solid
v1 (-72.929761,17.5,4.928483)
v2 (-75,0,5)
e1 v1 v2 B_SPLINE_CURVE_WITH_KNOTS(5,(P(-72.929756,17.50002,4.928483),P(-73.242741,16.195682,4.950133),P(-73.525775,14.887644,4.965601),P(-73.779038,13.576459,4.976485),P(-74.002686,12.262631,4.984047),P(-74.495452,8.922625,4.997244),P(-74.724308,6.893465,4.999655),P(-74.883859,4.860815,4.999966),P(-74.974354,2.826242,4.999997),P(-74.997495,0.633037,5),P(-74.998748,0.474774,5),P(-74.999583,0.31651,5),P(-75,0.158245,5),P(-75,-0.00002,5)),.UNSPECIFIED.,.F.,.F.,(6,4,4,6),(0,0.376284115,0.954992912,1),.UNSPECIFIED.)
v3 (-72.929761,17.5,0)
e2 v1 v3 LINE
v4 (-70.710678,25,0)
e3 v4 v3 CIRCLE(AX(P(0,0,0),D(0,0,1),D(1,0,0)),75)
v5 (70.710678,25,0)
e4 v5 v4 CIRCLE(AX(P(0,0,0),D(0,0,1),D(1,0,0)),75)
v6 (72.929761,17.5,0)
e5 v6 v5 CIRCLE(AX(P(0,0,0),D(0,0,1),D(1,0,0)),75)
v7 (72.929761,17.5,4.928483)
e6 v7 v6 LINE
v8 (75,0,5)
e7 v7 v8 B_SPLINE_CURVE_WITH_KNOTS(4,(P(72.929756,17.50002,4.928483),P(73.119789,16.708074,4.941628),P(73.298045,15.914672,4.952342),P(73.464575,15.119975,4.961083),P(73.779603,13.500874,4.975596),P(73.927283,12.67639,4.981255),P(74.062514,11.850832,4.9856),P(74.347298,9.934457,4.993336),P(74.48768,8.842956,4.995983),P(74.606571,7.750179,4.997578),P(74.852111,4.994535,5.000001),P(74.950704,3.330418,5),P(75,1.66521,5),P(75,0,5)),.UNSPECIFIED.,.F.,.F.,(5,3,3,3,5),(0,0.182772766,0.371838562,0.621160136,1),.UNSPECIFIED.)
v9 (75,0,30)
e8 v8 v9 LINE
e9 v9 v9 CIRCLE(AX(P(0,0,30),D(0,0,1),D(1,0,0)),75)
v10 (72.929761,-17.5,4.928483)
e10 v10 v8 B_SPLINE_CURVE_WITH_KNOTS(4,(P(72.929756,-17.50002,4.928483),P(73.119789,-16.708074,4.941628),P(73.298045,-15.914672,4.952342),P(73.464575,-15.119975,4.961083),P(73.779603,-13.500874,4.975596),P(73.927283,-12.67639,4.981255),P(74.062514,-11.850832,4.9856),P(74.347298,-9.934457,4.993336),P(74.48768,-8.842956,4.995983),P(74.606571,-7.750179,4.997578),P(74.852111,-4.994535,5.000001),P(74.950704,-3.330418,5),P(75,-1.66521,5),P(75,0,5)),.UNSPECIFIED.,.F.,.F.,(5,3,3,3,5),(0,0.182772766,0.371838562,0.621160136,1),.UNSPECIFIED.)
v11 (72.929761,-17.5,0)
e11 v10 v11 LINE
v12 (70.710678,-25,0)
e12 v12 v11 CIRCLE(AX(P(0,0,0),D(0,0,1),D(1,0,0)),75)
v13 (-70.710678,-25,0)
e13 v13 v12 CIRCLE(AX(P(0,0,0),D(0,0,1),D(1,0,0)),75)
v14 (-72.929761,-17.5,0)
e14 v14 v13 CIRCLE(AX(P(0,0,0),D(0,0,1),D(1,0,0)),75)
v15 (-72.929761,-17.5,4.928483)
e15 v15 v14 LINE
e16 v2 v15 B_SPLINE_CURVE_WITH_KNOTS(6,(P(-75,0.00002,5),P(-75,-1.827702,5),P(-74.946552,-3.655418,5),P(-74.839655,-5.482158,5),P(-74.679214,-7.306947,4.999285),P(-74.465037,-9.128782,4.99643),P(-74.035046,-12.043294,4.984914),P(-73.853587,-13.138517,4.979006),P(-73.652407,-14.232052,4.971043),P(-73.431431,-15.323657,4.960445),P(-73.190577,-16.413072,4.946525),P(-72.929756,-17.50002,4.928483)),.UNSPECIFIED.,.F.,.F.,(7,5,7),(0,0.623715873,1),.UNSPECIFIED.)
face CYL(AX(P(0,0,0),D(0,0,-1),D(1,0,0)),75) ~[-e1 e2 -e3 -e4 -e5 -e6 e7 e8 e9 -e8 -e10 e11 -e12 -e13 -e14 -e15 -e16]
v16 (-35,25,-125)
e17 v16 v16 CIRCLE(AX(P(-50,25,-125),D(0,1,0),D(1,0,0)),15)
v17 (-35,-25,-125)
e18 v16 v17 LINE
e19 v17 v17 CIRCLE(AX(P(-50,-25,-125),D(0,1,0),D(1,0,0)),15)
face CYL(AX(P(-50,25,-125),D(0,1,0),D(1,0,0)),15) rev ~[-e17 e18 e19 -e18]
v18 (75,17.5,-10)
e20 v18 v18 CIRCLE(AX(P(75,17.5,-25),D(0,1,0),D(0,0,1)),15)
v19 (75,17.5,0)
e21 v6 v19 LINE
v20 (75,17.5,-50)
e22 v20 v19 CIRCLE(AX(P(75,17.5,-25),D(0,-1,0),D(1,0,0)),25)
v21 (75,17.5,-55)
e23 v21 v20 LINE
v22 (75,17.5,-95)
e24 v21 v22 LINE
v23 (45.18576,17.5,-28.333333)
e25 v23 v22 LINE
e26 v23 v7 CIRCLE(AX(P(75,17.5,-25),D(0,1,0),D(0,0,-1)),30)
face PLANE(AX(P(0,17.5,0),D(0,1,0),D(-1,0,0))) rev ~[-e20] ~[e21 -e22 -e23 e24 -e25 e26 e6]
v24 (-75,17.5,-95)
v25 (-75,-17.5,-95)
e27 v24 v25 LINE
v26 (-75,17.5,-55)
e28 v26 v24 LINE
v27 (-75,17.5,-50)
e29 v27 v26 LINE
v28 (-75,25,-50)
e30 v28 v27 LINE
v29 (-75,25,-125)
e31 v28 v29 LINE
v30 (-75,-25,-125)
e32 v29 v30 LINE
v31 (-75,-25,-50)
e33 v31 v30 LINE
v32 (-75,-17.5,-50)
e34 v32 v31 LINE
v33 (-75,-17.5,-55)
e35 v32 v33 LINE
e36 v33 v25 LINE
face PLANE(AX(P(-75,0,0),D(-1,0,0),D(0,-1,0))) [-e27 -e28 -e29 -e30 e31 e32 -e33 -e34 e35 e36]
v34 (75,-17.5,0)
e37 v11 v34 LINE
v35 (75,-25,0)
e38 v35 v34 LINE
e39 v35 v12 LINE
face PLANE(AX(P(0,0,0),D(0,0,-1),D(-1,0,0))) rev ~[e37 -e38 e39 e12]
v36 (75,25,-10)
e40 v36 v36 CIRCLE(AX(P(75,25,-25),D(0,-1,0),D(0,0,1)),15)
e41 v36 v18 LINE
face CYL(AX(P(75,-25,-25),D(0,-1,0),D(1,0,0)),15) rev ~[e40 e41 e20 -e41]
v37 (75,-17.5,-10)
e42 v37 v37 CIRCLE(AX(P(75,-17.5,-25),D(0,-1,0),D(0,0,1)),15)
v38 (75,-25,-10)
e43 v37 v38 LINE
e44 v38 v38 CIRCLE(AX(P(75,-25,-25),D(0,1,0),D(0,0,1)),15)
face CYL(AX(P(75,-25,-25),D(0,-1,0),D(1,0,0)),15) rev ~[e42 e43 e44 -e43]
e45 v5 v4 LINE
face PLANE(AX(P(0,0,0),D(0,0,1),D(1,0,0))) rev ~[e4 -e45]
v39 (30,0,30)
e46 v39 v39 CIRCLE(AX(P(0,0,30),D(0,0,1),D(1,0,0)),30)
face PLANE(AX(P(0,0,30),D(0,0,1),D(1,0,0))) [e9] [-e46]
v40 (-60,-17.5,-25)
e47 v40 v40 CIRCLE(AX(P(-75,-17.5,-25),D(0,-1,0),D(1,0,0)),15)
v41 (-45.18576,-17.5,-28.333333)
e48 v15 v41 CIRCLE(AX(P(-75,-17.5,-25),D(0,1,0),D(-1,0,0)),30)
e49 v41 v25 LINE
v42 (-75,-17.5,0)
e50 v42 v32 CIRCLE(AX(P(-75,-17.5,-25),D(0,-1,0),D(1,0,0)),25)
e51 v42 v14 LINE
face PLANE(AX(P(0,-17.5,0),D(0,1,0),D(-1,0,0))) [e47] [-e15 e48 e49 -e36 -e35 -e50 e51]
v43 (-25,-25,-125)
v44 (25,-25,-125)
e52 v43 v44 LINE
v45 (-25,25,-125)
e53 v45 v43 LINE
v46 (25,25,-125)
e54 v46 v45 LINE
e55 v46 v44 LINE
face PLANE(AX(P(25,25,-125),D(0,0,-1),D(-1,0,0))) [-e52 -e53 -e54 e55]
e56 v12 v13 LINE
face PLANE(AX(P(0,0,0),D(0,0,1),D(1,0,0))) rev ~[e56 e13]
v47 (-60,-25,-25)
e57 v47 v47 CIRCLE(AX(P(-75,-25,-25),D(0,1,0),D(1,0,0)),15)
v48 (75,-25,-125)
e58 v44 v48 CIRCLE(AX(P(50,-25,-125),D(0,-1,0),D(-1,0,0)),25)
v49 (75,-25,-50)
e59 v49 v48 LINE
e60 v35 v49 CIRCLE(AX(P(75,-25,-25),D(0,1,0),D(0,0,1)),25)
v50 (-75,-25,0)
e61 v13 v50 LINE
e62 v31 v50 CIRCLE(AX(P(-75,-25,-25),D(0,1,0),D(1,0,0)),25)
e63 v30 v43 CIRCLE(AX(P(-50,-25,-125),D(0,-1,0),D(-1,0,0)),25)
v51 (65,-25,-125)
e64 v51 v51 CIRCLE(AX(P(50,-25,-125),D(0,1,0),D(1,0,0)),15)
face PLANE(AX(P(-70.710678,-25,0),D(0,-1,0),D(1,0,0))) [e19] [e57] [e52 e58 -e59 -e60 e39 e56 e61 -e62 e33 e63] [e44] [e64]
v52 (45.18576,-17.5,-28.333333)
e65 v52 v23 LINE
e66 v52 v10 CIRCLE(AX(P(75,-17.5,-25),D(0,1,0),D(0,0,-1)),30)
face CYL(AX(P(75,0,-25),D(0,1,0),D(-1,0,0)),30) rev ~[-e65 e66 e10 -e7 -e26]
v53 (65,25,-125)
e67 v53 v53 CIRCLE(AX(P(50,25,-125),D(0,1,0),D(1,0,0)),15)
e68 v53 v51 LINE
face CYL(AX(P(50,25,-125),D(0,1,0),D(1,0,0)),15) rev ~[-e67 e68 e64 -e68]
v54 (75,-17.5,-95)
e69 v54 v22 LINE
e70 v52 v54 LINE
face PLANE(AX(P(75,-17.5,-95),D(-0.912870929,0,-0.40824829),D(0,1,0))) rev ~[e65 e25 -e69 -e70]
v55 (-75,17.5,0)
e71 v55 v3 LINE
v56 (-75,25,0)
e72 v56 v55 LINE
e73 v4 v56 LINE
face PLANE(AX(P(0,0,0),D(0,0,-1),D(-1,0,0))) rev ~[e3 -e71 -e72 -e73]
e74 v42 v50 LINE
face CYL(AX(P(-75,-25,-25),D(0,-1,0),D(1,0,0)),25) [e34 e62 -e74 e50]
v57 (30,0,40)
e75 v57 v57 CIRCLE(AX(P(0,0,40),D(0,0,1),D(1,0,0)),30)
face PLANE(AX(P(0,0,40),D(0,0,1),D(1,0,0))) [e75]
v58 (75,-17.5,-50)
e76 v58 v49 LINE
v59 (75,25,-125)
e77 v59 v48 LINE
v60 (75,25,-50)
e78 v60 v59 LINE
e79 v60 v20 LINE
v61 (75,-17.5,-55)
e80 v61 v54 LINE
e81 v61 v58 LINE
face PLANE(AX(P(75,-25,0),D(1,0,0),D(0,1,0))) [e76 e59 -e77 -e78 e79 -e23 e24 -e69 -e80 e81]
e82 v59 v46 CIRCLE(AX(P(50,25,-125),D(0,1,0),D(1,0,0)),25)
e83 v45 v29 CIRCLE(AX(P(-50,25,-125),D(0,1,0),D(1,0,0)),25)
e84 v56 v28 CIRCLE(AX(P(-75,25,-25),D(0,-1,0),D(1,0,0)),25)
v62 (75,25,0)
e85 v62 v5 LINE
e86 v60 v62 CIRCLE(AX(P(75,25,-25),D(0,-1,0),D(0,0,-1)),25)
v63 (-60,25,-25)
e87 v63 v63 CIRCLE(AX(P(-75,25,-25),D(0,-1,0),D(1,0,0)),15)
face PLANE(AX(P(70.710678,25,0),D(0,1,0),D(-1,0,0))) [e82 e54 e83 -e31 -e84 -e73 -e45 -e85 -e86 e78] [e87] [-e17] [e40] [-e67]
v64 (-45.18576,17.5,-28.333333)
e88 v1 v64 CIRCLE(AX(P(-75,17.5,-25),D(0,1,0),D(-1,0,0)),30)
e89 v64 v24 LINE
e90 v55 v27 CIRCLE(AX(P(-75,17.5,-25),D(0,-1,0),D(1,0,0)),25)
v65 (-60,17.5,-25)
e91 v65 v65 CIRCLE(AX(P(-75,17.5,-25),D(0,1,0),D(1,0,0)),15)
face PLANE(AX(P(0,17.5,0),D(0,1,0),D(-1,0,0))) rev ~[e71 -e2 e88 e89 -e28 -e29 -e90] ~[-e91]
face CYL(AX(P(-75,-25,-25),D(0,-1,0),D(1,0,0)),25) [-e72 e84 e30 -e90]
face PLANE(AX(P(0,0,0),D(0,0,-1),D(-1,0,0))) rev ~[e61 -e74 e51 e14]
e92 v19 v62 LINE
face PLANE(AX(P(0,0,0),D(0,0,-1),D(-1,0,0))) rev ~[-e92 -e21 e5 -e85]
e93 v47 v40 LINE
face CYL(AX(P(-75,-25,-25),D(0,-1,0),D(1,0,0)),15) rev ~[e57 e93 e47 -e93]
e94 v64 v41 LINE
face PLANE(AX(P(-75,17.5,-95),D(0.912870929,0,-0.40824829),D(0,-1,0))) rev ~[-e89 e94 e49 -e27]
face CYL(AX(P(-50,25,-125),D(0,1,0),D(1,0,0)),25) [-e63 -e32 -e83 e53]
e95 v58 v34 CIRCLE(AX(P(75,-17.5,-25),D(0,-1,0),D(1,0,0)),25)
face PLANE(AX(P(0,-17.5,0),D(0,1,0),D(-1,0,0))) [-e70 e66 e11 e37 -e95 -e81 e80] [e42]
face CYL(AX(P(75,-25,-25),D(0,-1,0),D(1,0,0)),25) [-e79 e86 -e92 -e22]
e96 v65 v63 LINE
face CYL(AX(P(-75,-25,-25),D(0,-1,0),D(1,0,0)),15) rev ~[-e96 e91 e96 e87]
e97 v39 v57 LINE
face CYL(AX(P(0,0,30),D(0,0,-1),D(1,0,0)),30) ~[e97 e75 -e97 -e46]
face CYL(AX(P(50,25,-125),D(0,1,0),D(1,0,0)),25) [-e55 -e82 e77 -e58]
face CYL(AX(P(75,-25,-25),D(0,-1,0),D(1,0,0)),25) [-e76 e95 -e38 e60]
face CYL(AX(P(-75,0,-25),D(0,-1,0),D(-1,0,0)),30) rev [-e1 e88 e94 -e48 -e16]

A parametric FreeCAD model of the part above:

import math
import FreeCAD as App
import Part
import Sketcher
from FreeCAD import Vector


def edges_at(feature, points):
    """Names of the edges that pass closest to the given points."""
    edges = feature.Shape.Edges
    near = lambda p: min(range(len(edges)), key=lambda i: edges[i].distToShape(Part.Vertex(*p))[0])
    return sorted({f"Edge{near(p) + 1}" for p in points})

doc = App.newDocument("Part")
body = doc.addObject("PartDesign::Body", "Body")

# Sketch on XY plane
sketch1 = body.newObject("Sketcher::SketchObject", "Sketch")
sketch1.AttachmentSupport = (doc.getObject("XY_Plane"), [""])
sketch1.MapMode = "FlatFace"
sketch1.addGeometry(Part.Circle(Vector(0, 0, 0), Vector(0, 0, 1), 75), False)
sketch1.addConstraint([
    Sketcher.Constraint("Coincident", 0, 3, -1, 1),
    Sketcher.Constraint("Diameter", 0, 150.0),
])
pad1 = body.newObject("PartDesign::Pad", "Pad")
pad1.Profile = sketch1
pad1.Length = 30

# Sketch on XY plane
sketch2 = body.newObject("Sketcher::SketchObject", "Sketch001")
sketch2.AttachmentSupport = (doc.getObject("XY_Plane"), [""])
sketch2.MapMode = "FlatFace"
sketch2.AttachmentOffset = App.Placement(Vector(0, 0, 30), App.Rotation())
sketch2.addGeometry(Part.Circle(Vector(0, 0, 0), Vector(0, 0, 1), 30), False)
sketch2.addConstraint([
    Sketcher.Constraint("Coincident", 0, 3, -1, 1),
    Sketcher.Constraint("Diameter", 0, 60.0),
])
pad2 = body.newObject("PartDesign::Pad", "Pad001")
pad2.Profile = sketch2
pad2.Length = 10

# Sketch on XY plane
sketch3 = body.newObject("Sketcher::SketchObject", "Sketch002")
sketch3.AttachmentSupport = (doc.getObject("XY_Plane"), [""])
sketch3.MapMode = "FlatFace"
sketch3.addGeometry([
    Part.LineSegment(Vector(-75, -25, 0), Vector(-75, 25, 0)),
    Part.LineSegment(Vector(-75, 25, 0), Vector(75, 25, 0)),
    Part.LineSegment(Vector(75, 25, 0), Vector(75, -25, 0)),
    Part.LineSegment(Vector(75, -25, 0), Vector(-75, -25, 0)),
], False)
sketch3.addConstraint([
    Sketcher.Constraint("Coincident", 0, 2, 1, 1),
    Sketcher.Constraint("Coincident", 1, 2, 2, 1),
    Sketcher.Constraint("Coincident", 2, 2, 3, 1),
    Sketcher.Constraint("Coincident", 3, 2, 0, 1),
    Sketcher.Constraint("Vertical", 0),
    Sketcher.Constraint("Horizontal", 1),
    Sketcher.Constraint("Vertical", 2),
    Sketcher.Constraint("Horizontal", 3),
    Sketcher.Constraint("Symmetric", 0, 2, 2, 2, -1, 1),
    Sketcher.Constraint("DistanceX", 1, 1, 1, 2, 150.0),
    Sketcher.Constraint("DistanceY", 0, 1, 0, 2, 50.0),
])
pad3 = body.newObject("PartDesign::Pad", "Pad002")
pad3.Profile = sketch3
pad3.Length = 150
pad3.Reversed = True

# Sketch on XZ plane
sketch4 = body.newObject("Sketcher::SketchObject", "Sketch003")
sketch4.AttachmentSupport = (doc.getObject("XZ_Plane"), [""])
sketch4.MapMode = "FlatFace"
sketch4.AttachmentOffset = App.Placement(Vector(0, 0, -25), App.Rotation())
sketch4.addGeometry([
    Part.Circle(Vector(50, -125, 0), Vector(0, 0, 1), 15),  # 0
    Part.Circle(Vector(-50, -125, 0), Vector(0, 0, 1), 15),  # 1
    Part.ArcOfCircle(Part.Circle(Vector(50, -125, 0), Vector(0, 0, 1), 25), math.radians(-90), math.radians(0)),  # 2
    Part.LineSegment(Vector(75, -125, 0), Vector(75, -150, 0)),  # 3
    Part.LineSegment(Vector(75, -150, 0), Vector(50, -150, 0)),  # 4
    Part.ArcOfCircle(Part.Circle(Vector(-50, -125, 0), Vector(0, 0, 1), 25), math.radians(180), math.radians(270)),  # 5
    Part.LineSegment(Vector(-50, -150, 0), Vector(-75, -150, 0)),  # 6
    Part.LineSegment(Vector(-75, -150, 0), Vector(-75, -125, 0)),  # 7
    Part.ArcOfCircle(Part.Circle(Vector(50, -125, 0), Vector(0, 0, 1), 25), math.radians(180), math.radians(270)),  # 8
    Part.LineSegment(Vector(50, -150, 0), Vector(-50, -150, 0)),  # 9
    Part.ArcOfCircle(Part.Circle(Vector(-50, -125, 0), Vector(0, 0, 1), 25), math.radians(-90), math.radians(0)),  # 10
    Part.LineSegment(Vector(-25, -125, 0), Vector(25, -125, 0)),  # 11
], False)
sketch4.addConstraint([
    Sketcher.Constraint("Tangent", 2, 2, 3, 1),
    Sketcher.Constraint("Coincident", 3, 2, 4, 1),
    Sketcher.Constraint("Tangent", 4, 2, 2, 1),
    Sketcher.Constraint("Tangent", 5, 2, 6, 1),
    Sketcher.Constraint("Coincident", 6, 2, 7, 1),
    Sketcher.Constraint("Tangent", 7, 2, 5, 1),
    Sketcher.Constraint("Tangent", 8, 2, 9, 1),
    Sketcher.Constraint("Tangent", 9, 2, 10, 1),
    Sketcher.Constraint("Coincident", 10, 2, 11, 1),
    Sketcher.Constraint("Coincident", 11, 2, 8, 1),
    Sketcher.Constraint("Vertical", 3),
    Sketcher.Constraint("Horizontal", 4),
    Sketcher.Constraint("Horizontal", 6),
    Sketcher.Constraint("Vertical", 7),
    Sketcher.Constraint("Horizontal", 9),
    Sketcher.Constraint("Horizontal", 11),
    Sketcher.Constraint("Coincident", 2, 3, 0, 3),
    Sketcher.Constraint("Coincident", 5, 3, 1, 3),
    Sketcher.Constraint("Coincident", 8, 3, 0, 3),
    Sketcher.Constraint("Coincident", 10, 3, 1, 3),
    Sketcher.Constraint("Equal", 0, 1),
    Sketcher.Constraint("Equal", 2, 5),
    Sketcher.Constraint("Equal", 5, 8),
    Sketcher.Constraint("Equal", 8, 10),
    Sketcher.Constraint("Horizontal", 7, 2, 10, 2),
    Sketcher.Constraint("Diameter", 0, 30.0),
    Sketcher.Constraint("Radius", 2, 25.0),
    Sketcher.Constraint("DistanceX", 9, 2, 9, 1, 100.0),
    Sketcher.Constraint("DistanceX", 10, 2, -1, 1, 25.0),
    Sketcher.Constraint("DistanceY", 0, 3, -1, 1, 125.0),
])
pocket1 = body.newObject("PartDesign::Pocket", "Pocket")
pocket1.Profile = sketch4
pocket1.Type = "ThroughAll"
pocket1.Reversed = True

# Sketch on XZ plane
sketch5 = body.newObject("Sketcher::SketchObject", "Sketch004")
sketch5.AttachmentSupport = (doc.getObject("XZ_Plane"), [""])
sketch5.MapMode = "FlatFace"
sketch5.AttachmentOffset = App.Placement(Vector(0, 0, 25), App.Rotation())
sketch5.addGeometry([
    Part.Circle(Vector(-75, -25, 0), Vector(0, 0, 1), 25),
    Part.Circle(Vector(-75, -25, 0), Vector(0, 0, 1), 15),
    Part.Circle(Vector(75, -25, 0), Vector(0, 0, 1), 25),
    Part.Circle(Vector(75, -25, 0), Vector(0, 0, 1), 15),
], False)
sketch5.addConstraint([
    Sketcher.Constraint("Coincident", 1, 3, 0, 3),
    Sketcher.Constraint("Coincident", 3, 3, 2, 3),
    Sketcher.Constraint("Equal", 0, 2),
    Sketcher.Constraint("Equal", 1, 3),
    Sketcher.Constraint("Symmetric", 0, 3, 2, 3, -2),
    Sketcher.Constraint("Diameter", 1, 30.0),
    Sketcher.Constraint("Diameter", 0, 50.0),
    Sketcher.Constraint("DistanceX", 0, 3, -1, 1, 75.0),
    Sketcher.Constraint("DistanceY", 0, 3, -1, 1, 25.0),
])
pad4 = body.newObject("PartDesign::Pad", "Pad003")
pad4.Profile = sketch5
pad4.Length = 50
pad4.Reversed = True

# Sketch on XZ plane
sketch6 = body.newObject("Sketcher::SketchObject", "Sketch005")
sketch6.AttachmentSupport = (doc.getObject("XZ_Plane"), [""])
sketch6.MapMode = "FlatFace"
sketch6.AttachmentOffset = App.Placement(Vector(0, 0, 25), App.Rotation())
sketch6.addGeometry([
    Part.Circle(Vector(-75, -25, 0), Vector(0, 0, 1), 15),
    Part.Circle(Vector(75, -25, 0), Vector(0, 0, 1), 15),
], False)
sketch6.addConstraint([
    Sketcher.Constraint("Equal", 0, 1),
    Sketcher.Constraint("Symmetric", 0, 3, 1, 3, -2),
    Sketcher.Constraint("Diameter", 0, 30.0),
    Sketcher.Constraint("DistanceX", 0, 3, -1, 1, 75.0),
    Sketcher.Constraint("DistanceY", 0, 3, -1, 1, 25.0),
])
pocket2 = body.newObject("PartDesign::Pocket", "Pocket001")
pocket2.Profile = sketch6
pocket2.Type = "ThroughAll"

# Sketch on XZ plane
sketch7 = body.newObject("Sketcher::SketchObject", "Sketch006")
sketch7.AttachmentSupport = (doc.getObject("XZ_Plane"), [""])
sketch7.MapMode = "FlatFace"
sketch7.addGeometry([
    Part.Circle(Vector(-75, -25, 0), Vector(0, 0, 1), 30),
    Part.Circle(Vector(-75, -25, 0), Vector(0, 0, 1), 15),
    Part.Circle(Vector(75, -25, 0), Vector(0, 0, 1), 30),
    Part.Circle(Vector(75, -25, 0), Vector(0, 0, 1), 15),
], False)
sketch7.addConstraint([
    Sketcher.Constraint("Coincident", 1, 3, 0, 3),
    Sketcher.Constraint("Coincident", 3, 3, 2, 3),
    Sketcher.Constraint("Equal", 0, 2),
    Sketcher.Constraint("Equal", 1, 3),
    Sketcher.Constraint("Symmetric", 0, 3, 2, 3, -2),
    Sketcher.Constraint("Diameter", 0, 60.0),
    Sketcher.Constraint("Diameter", 1, 30.0),
    Sketcher.Constraint("DistanceX", 0, 3, -1, 1, 75.0),
    Sketcher.Constraint("DistanceY", 0, 3, -1, 1, 25.0),
])
pocket3 = body.newObject("PartDesign::Pocket", "Pocket002")
pocket3.Profile = sketch7
pocket3.Length = 35
pocket3.Midplane = True
doc.recompute()

chamfer = body.newObject("PartDesign::Chamfer", "Chamfer")
chamfer.Base = (pocket3, edges_at(pocket3, [(-75, 0, -55), (75, 0, -55)]))
chamfer.Size = 40

doc.recompute()
